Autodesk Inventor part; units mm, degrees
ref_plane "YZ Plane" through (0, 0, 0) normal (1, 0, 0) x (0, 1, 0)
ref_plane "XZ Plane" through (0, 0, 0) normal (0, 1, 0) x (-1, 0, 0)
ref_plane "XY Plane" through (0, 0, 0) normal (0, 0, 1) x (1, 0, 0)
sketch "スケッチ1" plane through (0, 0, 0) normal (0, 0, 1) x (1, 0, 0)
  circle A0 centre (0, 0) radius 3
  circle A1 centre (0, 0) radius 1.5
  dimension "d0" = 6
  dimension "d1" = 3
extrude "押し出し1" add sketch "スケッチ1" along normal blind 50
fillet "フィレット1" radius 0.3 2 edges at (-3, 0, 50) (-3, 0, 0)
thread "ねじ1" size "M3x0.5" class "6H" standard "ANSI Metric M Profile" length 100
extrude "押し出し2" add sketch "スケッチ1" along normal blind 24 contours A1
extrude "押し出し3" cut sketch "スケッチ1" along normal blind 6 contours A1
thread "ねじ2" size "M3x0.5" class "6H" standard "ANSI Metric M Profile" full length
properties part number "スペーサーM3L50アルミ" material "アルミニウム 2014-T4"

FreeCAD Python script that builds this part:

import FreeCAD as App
import Part
import Sketcher

V = App.Vector


def edges_at(feature, points):
    """Names of the edges that pass closest to the given points."""
    edges = feature.Shape.Edges
    near = lambda p: min(range(len(edges)), key=lambda i: edges[i].distToShape(Part.Vertex(*p))[0])
    return sorted({f"Edge{near(p) + 1}" for p in points})

doc = App.newDocument("Part")
params = doc.addObject("Spreadsheet::Sheet", "Params")
for row, (alias, value) in enumerate([
    ("sketch1_diameter", "6 mm"),
    ("sketch1_diameter2", "3 mm"),
    ("pad1_length", "50 mm"),
    ("fillet_radius", "0.3 mm"),
    ("sketch2_diameter", "3 mm"),
    ("pad2_length", "24 mm"),
    ("sketch3_diameter", "3 mm"),
    ("pocket1_length", "6 mm"),
], start=1):
    params.set(f"A{row}", alias)
    params.set(f"B{row}", "=" + value)
    params.setAlias(f"B{row}", alias)

body = doc.addObject("PartDesign::Body", "Body")

# Sketch on XY plane
sketch1 = body.newObject("Sketcher::SketchObject", "Sketch")
sketch1.AttachmentSupport = (doc.getObject("XY_Plane"), [""])
sketch1.MapMode = "FlatFace"
sketch1.addGeometry(Part.Circle(V(0, 0, 0), V(0, 0, 1), 3), False)
sketch1.addGeometry(Part.Circle(V(0, 0, 0), V(0, 0, 1), 1.5), False)
sketch1.addConstraint(Sketcher.Constraint("Coincident", 0, 3, -1, 1))
sketch1.addConstraint(Sketcher.Constraint("Coincident", 1, 3, -1, 1))
sketch1.addConstraint(Sketcher.Constraint("Diameter", 0, 6.0))
sketch1.addConstraint(Sketcher.Constraint("Diameter", 1, 3.0))
sketch1.setExpression("Constraints[2]", "Params.sketch1_diameter")
sketch1.setExpression("Constraints[3]", "Params.sketch1_diameter2")
pad1 = body.newObject("PartDesign::Pad", "Pad")
pad1.Profile = sketch1
pad1.setExpression("Length", "Params.pad1_length")
doc.recompute()

fillet = body.newObject("PartDesign::Fillet", "Fillet")
fillet.Base = (pad1, edges_at(pad1, [(-3, 0, 50), (-3, 0, 0)]))
fillet.setExpression("Radius", "Params.fillet_radius")

# Sketch on XY plane
sketch2 = body.newObject("Sketcher::SketchObject", "Sketch001")
sketch2.AttachmentSupport = (doc.getObject("XY_Plane"), [""])
sketch2.MapMode = "FlatFace"
sketch2.addGeometry(Part.Circle(V(0, 0, 0), V(0, 0, 1), 1.5), False)
sketch2.addConstraint(Sketcher.Constraint("Coincident", 0, 3, -1, 1))
sketch2.addConstraint(Sketcher.Constraint("Diameter", 0, 3.0))
sketch2.setExpression("Constraints[1]", "Params.sketch2_diameter")
pad2 = body.newObject("PartDesign::Pad", "Pad001")
pad2.Profile = sketch2
pad2.setExpression("Length", "Params.pad2_length")

# Sketch on XY plane
sketch3 = body.newObject("Sketcher::SketchObject", "Sketch002")
sketch3.AttachmentSupport = (doc.getObject("XY_Plane"), [""])
sketch3.MapMode = "FlatFace"
sketch3.addGeometry(Part.Circle(V(0, 0, 0), V(0, 0, 1), 1.5), False)
sketch3.addConstraint(Sketcher.Constraint("Coincident", 0, 3, -1, 1))
sketch3.addConstraint(Sketcher.Constraint("Diameter", 0, 3.0))
sketch3.setExpression("Constraints[1]", "Params.sketch3_diameter")
pocket1 = body.newObject("PartDesign::Pocket", "Pocket")
pocket1.Profile = sketch3
pocket1.setExpression("Length", "Params.pocket1_length")
pocket1.Reversed = True

doc.recompute()
